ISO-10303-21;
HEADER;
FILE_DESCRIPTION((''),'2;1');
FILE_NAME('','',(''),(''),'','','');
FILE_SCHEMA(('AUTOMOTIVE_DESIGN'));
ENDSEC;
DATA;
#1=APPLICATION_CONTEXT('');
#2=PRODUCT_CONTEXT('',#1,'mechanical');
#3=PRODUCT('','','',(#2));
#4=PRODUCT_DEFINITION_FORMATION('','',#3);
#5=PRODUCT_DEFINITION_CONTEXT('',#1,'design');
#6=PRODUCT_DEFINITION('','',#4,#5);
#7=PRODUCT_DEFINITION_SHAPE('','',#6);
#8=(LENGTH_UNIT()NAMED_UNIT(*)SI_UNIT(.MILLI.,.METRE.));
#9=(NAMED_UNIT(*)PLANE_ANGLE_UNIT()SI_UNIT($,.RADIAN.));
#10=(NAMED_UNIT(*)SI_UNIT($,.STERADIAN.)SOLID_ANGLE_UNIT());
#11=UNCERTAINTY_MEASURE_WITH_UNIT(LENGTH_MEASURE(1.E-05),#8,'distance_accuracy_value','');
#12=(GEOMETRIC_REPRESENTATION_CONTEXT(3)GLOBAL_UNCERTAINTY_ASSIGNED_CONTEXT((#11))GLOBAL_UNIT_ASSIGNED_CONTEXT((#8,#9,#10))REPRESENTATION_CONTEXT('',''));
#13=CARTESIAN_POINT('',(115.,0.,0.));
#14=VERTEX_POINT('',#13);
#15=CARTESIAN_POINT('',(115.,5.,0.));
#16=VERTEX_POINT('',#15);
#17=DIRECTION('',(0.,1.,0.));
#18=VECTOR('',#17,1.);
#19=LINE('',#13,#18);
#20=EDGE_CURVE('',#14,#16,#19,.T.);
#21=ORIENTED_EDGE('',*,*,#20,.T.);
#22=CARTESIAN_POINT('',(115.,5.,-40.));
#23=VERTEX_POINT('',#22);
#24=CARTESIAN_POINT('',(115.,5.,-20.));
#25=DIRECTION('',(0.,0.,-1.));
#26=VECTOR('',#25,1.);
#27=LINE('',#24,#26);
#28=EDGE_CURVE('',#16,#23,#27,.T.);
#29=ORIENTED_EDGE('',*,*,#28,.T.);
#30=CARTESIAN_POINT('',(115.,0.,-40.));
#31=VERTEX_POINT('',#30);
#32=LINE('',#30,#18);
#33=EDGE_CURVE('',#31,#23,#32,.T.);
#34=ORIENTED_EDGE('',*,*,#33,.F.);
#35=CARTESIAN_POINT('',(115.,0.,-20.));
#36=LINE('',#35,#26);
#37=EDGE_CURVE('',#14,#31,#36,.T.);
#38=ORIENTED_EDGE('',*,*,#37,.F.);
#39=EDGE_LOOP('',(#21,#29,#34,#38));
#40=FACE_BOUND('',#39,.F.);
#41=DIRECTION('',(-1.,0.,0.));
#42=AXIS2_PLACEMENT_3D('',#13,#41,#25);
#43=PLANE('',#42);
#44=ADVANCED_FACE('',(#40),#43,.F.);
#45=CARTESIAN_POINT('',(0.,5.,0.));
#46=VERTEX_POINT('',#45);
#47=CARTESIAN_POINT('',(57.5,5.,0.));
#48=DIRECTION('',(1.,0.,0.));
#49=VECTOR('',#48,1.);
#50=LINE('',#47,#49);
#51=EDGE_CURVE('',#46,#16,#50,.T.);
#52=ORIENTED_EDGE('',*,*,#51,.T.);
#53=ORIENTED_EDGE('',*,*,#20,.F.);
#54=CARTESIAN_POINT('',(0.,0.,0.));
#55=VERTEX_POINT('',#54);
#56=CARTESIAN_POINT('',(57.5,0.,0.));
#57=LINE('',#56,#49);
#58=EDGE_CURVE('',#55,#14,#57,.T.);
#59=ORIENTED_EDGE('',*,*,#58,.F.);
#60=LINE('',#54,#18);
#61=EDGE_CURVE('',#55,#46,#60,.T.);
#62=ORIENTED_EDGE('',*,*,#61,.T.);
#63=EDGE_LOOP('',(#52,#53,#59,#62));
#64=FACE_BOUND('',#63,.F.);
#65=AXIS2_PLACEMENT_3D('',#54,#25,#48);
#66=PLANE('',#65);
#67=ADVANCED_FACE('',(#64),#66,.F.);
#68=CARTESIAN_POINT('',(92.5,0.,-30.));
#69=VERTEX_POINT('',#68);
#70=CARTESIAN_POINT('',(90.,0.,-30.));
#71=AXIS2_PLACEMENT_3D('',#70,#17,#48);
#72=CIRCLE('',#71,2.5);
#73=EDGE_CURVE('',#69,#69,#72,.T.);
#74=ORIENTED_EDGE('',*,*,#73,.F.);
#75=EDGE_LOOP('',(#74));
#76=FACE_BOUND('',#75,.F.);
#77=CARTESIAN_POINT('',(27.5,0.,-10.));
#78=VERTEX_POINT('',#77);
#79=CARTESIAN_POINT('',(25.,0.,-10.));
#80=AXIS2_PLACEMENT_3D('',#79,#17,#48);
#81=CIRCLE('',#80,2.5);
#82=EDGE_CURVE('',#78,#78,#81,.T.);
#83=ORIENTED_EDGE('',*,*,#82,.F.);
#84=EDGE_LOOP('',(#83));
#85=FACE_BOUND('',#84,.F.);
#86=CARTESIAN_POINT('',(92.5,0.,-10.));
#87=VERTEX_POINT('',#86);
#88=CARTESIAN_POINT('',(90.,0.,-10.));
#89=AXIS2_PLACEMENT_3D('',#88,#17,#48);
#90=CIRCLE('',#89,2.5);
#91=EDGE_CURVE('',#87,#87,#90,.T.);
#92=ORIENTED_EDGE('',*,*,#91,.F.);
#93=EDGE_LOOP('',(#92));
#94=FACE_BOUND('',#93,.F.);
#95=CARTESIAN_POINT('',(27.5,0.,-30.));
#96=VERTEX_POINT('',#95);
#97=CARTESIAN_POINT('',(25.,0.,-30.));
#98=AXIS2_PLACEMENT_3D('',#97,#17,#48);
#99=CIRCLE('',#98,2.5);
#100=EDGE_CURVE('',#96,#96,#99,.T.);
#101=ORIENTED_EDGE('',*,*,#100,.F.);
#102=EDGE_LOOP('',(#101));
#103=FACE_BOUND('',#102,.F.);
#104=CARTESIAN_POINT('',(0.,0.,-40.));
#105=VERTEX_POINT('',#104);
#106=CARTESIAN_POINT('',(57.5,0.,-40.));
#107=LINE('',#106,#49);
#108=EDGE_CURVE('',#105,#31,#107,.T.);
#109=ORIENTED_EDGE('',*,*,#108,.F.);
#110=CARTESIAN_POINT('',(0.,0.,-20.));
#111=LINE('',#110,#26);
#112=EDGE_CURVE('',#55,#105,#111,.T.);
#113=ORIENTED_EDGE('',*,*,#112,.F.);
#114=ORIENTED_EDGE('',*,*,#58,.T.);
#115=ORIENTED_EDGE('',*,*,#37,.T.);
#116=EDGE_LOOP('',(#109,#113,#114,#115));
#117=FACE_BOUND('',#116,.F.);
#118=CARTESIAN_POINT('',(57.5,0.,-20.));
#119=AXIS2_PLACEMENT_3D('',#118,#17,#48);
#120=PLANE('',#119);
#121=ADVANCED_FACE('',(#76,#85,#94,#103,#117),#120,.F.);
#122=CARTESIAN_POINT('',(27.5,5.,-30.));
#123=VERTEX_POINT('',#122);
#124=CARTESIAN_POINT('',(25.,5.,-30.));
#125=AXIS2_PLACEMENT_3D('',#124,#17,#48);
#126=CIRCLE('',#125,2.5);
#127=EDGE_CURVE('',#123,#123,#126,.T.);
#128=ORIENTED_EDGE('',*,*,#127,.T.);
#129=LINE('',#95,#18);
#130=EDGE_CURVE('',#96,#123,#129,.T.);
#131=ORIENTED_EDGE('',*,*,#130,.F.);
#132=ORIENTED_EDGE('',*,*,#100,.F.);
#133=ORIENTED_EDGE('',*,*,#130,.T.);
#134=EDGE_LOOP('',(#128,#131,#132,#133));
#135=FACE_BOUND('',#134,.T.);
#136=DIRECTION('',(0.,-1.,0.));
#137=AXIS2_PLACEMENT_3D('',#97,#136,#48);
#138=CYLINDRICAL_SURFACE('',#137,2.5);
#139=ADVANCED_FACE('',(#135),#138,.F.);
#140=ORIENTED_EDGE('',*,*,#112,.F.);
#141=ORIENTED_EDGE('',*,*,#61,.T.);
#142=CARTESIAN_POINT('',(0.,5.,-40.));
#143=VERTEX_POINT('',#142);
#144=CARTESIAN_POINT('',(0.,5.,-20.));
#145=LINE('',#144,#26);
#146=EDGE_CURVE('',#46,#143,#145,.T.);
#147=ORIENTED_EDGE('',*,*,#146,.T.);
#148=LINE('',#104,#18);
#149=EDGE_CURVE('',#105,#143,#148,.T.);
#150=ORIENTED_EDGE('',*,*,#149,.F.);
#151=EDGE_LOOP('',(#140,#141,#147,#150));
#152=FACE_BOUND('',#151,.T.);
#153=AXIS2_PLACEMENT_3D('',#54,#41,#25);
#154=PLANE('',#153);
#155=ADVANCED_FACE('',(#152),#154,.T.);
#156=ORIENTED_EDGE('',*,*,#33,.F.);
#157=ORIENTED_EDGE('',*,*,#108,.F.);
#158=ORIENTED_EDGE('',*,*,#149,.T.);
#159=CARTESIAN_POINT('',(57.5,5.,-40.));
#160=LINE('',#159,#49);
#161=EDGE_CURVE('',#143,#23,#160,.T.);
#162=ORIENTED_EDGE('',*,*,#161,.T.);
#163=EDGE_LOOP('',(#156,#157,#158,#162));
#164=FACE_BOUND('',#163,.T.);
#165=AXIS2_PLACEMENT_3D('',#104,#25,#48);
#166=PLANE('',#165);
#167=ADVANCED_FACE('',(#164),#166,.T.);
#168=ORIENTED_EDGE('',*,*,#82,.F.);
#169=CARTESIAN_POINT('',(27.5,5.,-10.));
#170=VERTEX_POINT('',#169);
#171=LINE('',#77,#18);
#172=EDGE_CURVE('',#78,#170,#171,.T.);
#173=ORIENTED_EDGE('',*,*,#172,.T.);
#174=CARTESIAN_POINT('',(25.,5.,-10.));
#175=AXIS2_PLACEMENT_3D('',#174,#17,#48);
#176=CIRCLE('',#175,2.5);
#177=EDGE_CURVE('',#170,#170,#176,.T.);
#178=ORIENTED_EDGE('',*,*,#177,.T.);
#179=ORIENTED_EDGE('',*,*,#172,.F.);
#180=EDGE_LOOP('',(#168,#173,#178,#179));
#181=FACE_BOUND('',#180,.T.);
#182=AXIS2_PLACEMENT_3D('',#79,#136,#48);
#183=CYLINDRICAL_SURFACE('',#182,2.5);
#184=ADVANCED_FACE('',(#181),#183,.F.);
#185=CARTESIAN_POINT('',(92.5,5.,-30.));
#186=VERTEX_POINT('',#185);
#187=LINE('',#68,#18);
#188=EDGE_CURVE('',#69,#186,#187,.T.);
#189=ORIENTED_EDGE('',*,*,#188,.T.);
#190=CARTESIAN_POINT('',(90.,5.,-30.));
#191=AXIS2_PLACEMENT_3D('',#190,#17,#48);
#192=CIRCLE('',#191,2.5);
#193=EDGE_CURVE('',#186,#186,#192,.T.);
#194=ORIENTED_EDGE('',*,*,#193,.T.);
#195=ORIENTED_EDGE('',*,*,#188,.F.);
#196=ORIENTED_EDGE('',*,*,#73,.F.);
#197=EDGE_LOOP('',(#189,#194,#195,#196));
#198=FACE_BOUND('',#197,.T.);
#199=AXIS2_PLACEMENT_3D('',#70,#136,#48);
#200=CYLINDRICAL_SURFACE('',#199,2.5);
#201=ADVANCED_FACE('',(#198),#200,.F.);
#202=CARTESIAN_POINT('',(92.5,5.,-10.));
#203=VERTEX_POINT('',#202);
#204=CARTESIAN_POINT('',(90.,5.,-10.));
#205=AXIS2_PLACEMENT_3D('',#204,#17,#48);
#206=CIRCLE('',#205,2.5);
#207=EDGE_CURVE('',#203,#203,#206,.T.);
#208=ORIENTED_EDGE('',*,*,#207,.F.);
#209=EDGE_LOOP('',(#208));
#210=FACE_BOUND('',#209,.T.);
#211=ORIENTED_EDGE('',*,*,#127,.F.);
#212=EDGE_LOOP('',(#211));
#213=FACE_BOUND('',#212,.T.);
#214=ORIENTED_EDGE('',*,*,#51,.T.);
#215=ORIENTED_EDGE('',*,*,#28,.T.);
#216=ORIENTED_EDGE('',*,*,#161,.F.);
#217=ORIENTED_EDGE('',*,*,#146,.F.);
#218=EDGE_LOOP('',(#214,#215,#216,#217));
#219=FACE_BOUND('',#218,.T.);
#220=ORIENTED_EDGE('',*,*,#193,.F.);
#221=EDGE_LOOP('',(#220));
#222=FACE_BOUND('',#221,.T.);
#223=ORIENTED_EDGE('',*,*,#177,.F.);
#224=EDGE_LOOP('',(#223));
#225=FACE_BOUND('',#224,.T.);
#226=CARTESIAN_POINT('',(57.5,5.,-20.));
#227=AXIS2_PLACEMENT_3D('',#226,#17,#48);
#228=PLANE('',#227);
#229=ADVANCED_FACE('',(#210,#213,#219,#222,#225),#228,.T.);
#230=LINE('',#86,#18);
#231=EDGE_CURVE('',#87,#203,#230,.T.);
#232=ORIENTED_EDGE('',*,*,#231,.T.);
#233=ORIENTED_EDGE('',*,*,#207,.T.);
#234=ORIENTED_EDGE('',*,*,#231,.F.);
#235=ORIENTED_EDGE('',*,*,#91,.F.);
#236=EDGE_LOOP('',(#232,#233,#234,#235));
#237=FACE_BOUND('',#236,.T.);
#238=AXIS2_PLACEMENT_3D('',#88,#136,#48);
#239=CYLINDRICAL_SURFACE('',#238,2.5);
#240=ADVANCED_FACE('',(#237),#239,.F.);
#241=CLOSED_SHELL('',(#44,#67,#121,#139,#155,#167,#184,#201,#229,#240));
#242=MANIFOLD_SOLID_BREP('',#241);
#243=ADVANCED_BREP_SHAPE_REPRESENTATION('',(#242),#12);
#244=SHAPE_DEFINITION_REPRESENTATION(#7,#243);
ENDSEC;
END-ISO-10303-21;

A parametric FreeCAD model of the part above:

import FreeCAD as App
import Part
import Sketcher
Q = App.Units.Quantity

doc = App.newDocument("Part")
body = doc.addObject("PartDesign::Body", "Body")

sketch1 = doc.addObject("Sketcher::SketchObject", "Sketch")
body.addObject(sketch1)
sketch1.AttachmentSupport = (doc.XZ_Plane, [""])
sketch1.MapMode = "FlatFace"
sketch1.addGeometry(Part.LineSegment(App.Vector(0, -40, 0), App.Vector(0, 0, 0)), False)
sketch1.addGeometry(Part.LineSegment(App.Vector(0, 0, 0), App.Vector(115, 0, 0)), False)
sketch1.addGeometry(Part.LineSegment(App.Vector(115, 0, 0), App.Vector(115, -40, 0)), False)
sketch1.addGeometry(Part.LineSegment(App.Vector(115, -40, 0), App.Vector(0, -40, 0)), False)
sketch1.addGeometry(Part.Circle(App.Vector(25, -10, 0), App.Vector(0, 0, 1), 2.5), False)
sketch1.addGeometry(Part.Circle(App.Vector(90, -10, 0), App.Vector(0, 0, 1), 2.5), False)
sketch1.addGeometry(Part.Circle(App.Vector(25, -30, 0), App.Vector(0, 0, 1), 2.5), False)
sketch1.addGeometry(Part.Circle(App.Vector(90, -30, 0), App.Vector(0, 0, 1), 2.5), False)
sketch1.addConstraint(Sketcher.Constraint("Coincident", 0, 2, 1, 1))
sketch1.addConstraint(Sketcher.Constraint("Coincident", 1, 2, 2, 1))
sketch1.addConstraint(Sketcher.Constraint("Coincident", 2, 2, 3, 1))
sketch1.addConstraint(Sketcher.Constraint("Coincident", 3, 2, 0, 1))
sketch1.addConstraint(Sketcher.Constraint("Vertical", 0))
sketch1.addConstraint(Sketcher.Constraint("Horizontal", 1))
sketch1.addConstraint(Sketcher.Constraint("Vertical", 2))
sketch1.addConstraint(Sketcher.Constraint("Horizontal", 3))
sketch1.addConstraint(Sketcher.Constraint("Coincident", 0, 2, -1, 1))
sketch1.addConstraint(Sketcher.Constraint("Equal", 4, 5))
sketch1.addConstraint(Sketcher.Constraint("Equal", 5, 6))
sketch1.addConstraint(Sketcher.Constraint("Equal", 6, 7))
sketch1.addConstraint(Sketcher.Constraint("Horizontal", 4, 3, 5, 3))
sketch1.addConstraint(Sketcher.Constraint("Horizontal", 6, 3, 7, 3))
sketch1.addConstraint(Sketcher.Constraint("Vertical", 4, 3, 6, 3))
sketch1.addConstraint(Sketcher.Constraint("Vertical", 5, 3, 7, 3))
sketch1.addConstraint(Sketcher.Constraint("Diameter", 4, Q("5 mm")))
sketch1.addConstraint(Sketcher.Constraint("DistanceX", 1, 1, 1, 2, Q("115 mm")))
sketch1.addConstraint(Sketcher.Constraint("DistanceY", 0, 1, 0, 2, Q("40 mm")))
sketch1.addConstraint(Sketcher.Constraint("DistanceX", -1, 1, 4, 3, Q("25 mm")))
sketch1.addConstraint(Sketcher.Constraint("DistanceY", 4, 3, -1, 1, Q("10 mm")))
sketch1.addConstraint(Sketcher.Constraint("DistanceX", -1, 1, 5, 3, Q("90 mm")))
sketch1.addConstraint(Sketcher.Constraint("DistanceY", 6, 3, -1, 1, Q("30 mm")))
pad1 = doc.addObject("PartDesign::Pad", "Pad")
body.addObject(pad1)
pad1.Profile = sketch1
pad1.Length = 5
pad1.Reversed = True

doc.recompute()
